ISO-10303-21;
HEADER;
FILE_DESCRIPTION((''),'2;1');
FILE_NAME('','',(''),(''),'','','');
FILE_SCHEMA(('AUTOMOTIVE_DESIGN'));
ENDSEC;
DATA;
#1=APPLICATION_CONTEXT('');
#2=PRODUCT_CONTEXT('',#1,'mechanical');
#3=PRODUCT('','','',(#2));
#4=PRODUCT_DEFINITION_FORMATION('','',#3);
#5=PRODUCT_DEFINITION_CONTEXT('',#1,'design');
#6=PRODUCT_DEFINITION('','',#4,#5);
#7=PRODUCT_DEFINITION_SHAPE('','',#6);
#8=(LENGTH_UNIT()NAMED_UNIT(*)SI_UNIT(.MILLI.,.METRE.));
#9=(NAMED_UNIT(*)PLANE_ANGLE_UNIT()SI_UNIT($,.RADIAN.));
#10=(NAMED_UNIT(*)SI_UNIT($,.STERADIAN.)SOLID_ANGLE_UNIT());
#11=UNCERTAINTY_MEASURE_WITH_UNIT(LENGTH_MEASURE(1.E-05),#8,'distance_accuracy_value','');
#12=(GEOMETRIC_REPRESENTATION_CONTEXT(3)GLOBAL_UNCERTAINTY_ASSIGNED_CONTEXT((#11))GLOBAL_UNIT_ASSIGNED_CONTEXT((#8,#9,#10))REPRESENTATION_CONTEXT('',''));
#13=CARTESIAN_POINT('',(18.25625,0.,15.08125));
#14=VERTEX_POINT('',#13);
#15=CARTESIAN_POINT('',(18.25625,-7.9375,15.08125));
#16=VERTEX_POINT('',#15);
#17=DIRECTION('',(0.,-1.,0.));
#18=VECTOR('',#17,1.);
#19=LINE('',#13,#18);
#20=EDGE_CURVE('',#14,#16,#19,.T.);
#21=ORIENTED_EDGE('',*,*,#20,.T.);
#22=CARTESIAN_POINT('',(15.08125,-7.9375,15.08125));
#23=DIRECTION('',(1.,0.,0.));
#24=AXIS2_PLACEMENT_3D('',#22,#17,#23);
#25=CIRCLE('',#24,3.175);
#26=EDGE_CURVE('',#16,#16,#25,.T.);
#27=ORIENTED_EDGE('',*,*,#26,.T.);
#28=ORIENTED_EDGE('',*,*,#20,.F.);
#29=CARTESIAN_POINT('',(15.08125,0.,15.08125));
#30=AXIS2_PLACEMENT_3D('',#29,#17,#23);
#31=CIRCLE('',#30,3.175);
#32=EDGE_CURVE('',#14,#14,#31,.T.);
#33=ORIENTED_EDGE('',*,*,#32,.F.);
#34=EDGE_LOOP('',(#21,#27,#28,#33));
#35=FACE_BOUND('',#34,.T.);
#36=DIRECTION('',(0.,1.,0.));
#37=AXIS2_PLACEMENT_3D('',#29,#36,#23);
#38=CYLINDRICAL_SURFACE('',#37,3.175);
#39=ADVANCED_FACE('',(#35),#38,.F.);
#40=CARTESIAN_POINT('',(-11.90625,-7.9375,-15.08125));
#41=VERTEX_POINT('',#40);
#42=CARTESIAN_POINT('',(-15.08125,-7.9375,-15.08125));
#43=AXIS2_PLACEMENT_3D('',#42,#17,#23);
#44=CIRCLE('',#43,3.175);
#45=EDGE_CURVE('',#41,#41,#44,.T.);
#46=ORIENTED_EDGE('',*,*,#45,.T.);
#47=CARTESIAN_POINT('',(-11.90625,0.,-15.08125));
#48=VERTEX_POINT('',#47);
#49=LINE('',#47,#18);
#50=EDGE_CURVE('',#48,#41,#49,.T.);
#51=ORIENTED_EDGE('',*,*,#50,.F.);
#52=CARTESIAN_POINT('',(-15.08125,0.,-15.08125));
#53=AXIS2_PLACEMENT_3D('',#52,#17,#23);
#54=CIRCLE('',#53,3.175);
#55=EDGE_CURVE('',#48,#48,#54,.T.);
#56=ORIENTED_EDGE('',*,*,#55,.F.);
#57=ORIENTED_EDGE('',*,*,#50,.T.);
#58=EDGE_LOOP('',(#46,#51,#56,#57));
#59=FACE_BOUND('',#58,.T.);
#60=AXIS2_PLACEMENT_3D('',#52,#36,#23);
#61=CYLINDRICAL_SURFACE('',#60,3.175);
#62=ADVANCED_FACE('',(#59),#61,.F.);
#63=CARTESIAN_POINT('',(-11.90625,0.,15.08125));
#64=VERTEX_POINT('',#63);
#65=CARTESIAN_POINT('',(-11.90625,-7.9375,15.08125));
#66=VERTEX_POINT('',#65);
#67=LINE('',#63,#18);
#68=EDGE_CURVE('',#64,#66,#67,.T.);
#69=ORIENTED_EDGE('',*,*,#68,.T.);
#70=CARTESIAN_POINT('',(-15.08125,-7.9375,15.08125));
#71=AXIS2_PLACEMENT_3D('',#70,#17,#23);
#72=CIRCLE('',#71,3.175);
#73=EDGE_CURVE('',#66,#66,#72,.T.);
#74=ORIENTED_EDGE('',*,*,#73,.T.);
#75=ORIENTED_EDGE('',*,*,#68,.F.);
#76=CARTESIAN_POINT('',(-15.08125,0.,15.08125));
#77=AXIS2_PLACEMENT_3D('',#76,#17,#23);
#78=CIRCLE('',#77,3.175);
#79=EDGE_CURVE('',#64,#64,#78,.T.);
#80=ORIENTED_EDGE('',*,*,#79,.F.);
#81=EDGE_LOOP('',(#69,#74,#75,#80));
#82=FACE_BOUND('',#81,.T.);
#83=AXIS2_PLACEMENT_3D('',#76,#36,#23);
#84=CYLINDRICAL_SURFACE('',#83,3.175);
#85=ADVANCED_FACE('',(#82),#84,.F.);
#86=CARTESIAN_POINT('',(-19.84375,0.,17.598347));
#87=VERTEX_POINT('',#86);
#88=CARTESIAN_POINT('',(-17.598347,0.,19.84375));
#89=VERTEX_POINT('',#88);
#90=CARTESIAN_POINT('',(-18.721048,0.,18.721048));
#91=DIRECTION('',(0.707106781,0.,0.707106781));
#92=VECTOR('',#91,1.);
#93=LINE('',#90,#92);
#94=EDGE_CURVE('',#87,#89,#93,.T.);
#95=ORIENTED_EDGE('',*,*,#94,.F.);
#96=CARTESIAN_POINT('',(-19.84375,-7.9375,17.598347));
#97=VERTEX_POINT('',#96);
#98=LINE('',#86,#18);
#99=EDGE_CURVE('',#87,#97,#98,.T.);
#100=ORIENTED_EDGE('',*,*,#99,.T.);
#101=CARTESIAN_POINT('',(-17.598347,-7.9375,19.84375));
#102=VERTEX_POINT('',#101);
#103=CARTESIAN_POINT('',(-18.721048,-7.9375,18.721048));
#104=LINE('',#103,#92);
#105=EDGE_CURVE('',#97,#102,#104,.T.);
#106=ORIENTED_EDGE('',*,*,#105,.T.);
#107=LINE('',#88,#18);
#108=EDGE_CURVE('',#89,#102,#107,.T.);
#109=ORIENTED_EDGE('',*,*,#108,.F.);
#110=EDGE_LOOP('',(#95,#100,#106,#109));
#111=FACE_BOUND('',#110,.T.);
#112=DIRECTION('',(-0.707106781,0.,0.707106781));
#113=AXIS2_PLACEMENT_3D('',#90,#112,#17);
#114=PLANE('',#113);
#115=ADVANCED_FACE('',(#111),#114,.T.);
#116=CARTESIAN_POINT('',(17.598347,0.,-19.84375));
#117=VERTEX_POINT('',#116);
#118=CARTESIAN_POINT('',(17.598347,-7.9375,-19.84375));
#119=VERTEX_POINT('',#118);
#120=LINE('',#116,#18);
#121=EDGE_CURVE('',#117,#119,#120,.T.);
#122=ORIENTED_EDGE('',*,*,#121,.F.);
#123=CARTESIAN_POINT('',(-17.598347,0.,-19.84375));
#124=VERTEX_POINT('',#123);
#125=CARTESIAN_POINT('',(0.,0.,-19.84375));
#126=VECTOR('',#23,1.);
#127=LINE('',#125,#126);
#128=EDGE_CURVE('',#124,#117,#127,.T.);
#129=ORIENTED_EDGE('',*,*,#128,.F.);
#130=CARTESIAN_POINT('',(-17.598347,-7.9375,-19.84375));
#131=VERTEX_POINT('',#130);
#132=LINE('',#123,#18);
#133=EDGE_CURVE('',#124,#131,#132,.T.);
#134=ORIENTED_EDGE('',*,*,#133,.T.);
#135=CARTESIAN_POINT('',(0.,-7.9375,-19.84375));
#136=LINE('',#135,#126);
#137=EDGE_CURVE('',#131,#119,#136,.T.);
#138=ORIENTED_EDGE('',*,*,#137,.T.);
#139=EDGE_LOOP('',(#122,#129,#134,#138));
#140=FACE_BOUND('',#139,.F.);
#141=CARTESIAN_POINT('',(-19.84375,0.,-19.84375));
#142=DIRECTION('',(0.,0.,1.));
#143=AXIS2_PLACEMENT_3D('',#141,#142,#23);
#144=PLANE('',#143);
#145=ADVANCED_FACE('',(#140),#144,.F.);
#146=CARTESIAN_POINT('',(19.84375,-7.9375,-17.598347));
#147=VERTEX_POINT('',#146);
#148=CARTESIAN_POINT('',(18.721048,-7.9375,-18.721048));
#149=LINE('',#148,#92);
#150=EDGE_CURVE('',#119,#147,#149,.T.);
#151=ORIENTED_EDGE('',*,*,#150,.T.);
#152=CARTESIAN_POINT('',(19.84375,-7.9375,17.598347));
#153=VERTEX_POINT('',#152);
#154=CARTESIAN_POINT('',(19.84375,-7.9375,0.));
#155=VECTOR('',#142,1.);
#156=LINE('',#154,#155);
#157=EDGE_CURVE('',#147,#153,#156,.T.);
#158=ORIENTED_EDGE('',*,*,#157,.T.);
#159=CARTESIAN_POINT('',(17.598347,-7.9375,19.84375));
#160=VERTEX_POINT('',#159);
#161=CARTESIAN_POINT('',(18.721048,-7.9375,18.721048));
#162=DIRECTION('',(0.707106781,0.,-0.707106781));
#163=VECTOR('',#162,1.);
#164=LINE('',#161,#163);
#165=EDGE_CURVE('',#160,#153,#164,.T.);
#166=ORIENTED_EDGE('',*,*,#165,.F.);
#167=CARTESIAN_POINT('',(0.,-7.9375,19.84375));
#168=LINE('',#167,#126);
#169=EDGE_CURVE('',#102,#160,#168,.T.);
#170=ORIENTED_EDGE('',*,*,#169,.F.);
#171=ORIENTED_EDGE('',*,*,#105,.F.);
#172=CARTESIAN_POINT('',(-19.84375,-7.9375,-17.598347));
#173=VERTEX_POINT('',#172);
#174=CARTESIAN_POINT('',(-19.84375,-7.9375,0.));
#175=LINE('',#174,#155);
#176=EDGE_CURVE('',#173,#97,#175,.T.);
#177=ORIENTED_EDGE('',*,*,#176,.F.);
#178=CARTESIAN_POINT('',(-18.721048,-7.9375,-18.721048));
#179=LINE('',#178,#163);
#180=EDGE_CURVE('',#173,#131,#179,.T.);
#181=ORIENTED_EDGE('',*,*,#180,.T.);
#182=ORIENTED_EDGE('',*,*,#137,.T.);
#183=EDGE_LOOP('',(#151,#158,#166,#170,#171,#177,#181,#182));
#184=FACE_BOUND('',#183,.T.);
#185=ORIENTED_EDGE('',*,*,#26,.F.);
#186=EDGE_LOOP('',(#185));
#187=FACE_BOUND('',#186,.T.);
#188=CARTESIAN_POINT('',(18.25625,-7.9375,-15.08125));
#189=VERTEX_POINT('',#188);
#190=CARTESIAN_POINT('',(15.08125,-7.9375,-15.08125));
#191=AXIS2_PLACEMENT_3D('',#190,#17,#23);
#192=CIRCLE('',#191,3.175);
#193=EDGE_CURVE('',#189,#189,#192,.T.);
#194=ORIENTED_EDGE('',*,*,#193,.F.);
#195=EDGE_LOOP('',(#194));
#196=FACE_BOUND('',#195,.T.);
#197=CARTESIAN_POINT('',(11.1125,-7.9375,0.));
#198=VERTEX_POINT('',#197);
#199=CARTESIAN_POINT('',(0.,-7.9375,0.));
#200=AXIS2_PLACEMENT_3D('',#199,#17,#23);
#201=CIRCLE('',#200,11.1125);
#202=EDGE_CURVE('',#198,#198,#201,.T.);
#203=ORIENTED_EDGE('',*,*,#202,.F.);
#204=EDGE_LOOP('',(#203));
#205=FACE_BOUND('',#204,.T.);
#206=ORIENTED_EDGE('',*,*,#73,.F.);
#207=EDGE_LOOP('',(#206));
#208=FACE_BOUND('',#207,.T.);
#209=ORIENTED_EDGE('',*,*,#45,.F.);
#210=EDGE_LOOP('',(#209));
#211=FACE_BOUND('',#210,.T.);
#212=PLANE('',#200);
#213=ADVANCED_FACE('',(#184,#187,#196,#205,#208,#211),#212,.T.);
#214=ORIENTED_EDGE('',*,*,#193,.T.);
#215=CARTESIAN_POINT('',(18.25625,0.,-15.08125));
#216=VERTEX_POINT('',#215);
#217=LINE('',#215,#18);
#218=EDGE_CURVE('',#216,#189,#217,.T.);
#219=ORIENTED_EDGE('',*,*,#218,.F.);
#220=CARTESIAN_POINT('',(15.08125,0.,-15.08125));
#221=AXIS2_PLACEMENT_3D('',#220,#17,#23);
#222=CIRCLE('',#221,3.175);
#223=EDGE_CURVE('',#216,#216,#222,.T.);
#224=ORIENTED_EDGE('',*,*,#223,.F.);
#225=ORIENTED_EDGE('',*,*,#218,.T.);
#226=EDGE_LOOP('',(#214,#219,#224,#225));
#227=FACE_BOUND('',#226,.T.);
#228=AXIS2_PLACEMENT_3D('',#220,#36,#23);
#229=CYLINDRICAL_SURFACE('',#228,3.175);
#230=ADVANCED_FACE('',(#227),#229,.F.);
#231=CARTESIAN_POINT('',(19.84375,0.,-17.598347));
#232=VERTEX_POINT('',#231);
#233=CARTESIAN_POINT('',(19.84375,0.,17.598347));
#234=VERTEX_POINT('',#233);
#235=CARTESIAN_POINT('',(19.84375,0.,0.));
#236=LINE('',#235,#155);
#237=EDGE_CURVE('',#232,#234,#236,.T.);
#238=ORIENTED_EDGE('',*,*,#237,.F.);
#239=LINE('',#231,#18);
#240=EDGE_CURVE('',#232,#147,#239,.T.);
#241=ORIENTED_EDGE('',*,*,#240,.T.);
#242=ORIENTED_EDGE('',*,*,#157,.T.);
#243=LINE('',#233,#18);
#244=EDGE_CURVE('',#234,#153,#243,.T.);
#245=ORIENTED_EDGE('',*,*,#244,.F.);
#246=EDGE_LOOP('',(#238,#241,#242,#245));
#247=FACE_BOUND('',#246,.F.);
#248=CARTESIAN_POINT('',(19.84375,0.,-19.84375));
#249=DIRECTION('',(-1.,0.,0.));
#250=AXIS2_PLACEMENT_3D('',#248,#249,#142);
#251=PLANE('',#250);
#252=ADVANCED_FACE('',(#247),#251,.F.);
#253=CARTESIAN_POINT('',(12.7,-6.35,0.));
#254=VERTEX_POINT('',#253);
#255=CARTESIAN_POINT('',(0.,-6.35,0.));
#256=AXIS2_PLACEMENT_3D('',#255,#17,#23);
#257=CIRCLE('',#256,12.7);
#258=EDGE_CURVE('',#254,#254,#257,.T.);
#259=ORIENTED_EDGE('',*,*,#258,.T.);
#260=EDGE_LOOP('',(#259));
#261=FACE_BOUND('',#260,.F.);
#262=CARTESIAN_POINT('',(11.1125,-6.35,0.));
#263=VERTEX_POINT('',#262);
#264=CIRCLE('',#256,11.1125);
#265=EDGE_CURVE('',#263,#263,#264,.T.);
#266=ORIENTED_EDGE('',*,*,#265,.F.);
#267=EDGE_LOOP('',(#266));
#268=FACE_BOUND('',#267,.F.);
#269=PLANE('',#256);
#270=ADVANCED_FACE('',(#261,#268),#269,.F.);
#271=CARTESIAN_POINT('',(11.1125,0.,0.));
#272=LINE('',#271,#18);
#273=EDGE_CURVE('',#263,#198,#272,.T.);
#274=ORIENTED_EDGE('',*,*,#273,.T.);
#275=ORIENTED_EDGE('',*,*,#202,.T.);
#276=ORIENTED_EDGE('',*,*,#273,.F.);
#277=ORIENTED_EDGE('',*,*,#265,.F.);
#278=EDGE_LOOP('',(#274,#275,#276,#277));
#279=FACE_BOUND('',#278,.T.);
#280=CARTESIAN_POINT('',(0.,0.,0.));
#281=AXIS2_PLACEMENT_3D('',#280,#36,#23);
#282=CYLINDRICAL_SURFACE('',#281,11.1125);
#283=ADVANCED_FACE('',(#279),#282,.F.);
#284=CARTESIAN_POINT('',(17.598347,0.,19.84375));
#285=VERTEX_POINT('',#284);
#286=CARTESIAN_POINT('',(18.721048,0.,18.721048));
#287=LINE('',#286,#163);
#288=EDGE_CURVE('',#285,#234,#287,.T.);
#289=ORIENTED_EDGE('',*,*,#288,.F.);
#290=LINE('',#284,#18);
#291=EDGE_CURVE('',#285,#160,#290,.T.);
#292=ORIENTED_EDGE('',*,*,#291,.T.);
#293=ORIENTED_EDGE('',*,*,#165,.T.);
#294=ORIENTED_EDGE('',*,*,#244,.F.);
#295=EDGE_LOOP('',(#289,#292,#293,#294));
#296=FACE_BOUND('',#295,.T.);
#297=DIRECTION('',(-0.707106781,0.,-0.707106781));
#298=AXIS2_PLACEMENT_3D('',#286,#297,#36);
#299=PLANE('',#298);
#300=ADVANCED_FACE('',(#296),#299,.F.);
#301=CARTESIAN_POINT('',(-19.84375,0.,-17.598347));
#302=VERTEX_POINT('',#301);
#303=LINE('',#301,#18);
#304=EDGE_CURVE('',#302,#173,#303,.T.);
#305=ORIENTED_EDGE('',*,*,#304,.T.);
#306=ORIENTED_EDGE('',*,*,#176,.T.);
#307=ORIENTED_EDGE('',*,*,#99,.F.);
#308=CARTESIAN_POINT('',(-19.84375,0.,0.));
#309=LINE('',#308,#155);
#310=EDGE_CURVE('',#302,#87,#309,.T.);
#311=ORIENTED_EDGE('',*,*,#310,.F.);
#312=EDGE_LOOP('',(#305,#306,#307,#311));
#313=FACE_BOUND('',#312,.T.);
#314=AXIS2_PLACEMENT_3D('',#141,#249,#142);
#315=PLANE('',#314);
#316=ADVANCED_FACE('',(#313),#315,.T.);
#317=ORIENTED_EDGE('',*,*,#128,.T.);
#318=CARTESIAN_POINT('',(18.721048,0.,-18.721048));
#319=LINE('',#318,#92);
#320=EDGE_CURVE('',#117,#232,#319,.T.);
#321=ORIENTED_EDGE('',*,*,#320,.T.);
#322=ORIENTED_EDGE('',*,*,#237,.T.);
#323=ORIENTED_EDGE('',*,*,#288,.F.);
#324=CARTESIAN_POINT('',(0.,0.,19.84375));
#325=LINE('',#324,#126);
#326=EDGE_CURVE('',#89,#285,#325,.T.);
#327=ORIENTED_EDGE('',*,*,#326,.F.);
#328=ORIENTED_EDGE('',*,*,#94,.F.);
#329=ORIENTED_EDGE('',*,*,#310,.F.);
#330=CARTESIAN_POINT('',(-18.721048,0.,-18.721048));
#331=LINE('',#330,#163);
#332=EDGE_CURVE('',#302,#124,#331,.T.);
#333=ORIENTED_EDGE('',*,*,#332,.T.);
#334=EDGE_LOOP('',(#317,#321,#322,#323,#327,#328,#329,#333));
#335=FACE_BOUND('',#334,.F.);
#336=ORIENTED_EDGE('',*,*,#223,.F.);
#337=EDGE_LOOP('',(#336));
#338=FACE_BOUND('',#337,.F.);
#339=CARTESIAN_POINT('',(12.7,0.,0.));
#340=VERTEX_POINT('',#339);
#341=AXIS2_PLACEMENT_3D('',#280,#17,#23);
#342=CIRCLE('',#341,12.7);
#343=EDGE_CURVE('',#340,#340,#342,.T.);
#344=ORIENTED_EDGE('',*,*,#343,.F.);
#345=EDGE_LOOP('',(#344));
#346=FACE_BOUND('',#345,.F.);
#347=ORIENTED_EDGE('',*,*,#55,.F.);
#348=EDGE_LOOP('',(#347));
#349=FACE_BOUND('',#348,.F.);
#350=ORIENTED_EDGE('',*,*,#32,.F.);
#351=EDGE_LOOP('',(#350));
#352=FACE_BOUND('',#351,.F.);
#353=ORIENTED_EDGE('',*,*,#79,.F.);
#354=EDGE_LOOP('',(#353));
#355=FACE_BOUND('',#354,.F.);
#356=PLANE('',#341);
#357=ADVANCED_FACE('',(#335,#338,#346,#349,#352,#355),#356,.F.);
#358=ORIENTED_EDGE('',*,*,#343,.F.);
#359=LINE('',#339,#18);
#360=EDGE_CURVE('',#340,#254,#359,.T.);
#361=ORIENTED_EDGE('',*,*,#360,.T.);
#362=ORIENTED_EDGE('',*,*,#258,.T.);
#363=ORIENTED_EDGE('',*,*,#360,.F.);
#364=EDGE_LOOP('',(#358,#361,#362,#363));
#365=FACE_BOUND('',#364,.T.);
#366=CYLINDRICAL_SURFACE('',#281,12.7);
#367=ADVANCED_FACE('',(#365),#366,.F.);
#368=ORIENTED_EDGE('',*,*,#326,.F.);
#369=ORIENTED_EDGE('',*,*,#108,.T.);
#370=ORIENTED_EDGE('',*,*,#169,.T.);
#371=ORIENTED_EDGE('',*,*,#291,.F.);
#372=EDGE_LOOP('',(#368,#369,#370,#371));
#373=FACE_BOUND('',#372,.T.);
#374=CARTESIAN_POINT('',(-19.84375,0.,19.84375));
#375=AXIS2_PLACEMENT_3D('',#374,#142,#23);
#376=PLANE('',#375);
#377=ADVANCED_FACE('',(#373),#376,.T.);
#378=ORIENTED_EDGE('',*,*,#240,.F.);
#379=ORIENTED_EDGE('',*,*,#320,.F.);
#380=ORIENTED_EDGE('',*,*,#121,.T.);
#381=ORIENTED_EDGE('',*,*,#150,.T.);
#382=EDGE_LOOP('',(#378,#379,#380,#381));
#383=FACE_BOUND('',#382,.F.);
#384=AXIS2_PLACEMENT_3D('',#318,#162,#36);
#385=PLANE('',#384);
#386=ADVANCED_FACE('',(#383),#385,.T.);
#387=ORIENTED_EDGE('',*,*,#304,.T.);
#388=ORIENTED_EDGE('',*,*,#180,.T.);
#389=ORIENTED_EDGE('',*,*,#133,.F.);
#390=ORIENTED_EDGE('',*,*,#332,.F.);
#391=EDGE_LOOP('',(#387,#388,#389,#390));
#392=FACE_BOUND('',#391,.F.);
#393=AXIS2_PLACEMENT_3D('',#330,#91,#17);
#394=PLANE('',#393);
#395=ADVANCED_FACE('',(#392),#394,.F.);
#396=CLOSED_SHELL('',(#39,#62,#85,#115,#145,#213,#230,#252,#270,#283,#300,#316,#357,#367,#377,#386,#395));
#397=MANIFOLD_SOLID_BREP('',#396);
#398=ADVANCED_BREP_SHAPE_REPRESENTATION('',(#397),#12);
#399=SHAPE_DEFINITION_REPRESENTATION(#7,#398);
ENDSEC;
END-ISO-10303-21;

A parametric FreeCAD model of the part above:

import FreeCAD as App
import Part
import Sketcher
from FreeCAD import Vector
Q = App.Units.Quantity


def edges_at(feature, points):
    """Names of the edges that pass closest to the given points."""
    edges = feature.Shape.Edges
    near = lambda p: min(range(len(edges)), key=lambda i: edges[i].distToShape(Part.Vertex(*p))[0])
    return sorted({f"Edge{near(p) + 1}" for p in points})

doc = App.newDocument("Part")
body = doc.addObject("PartDesign::Body", "Body")

# Sketch on XZ plane
sketch1 = doc.addObject("Sketcher::SketchObject", "Sketch")
body.addObject(sketch1)
sketch1.AttachmentSupport = (doc.XZ_Plane, [""])
sketch1.MapMode = "FlatFace"
sketch1.addGeometry(Part.LineSegment(Vector(-19.84375, 19.84375, 0), Vector(-19.84375, -19.84375, 0)), False)
sketch1.addGeometry(Part.LineSegment(Vector(-19.84375, -19.84375, 0), Vector(19.84375, -19.84375, 0)), False)
sketch1.addGeometry(Part.LineSegment(Vector(19.84375, -19.84375, 0), Vector(19.84375, 19.84375, 0)), False)
sketch1.addGeometry(Part.LineSegment(Vector(19.84375, 19.84375, 0), Vector(-19.84375, 19.84375, 0)), False)
sketch1.addGeometry(Part.Circle(Vector(-15.08125, -15.08125, 0), Vector(0, 0, 1), 3.175), False)
sketch1.addGeometry(Part.Circle(Vector(15.08125, -15.08125, 0), Vector(0, 0, 1), 3.175), False)
sketch1.addGeometry(Part.Circle(Vector(-15.08125, 15.08125, 0), Vector(0, 0, 1), 3.175), False)
sketch1.addGeometry(Part.Circle(Vector(0, 0, 0), Vector(0, 0, 1), 11.1125), False)
sketch1.addGeometry(Part.Circle(Vector(15.08125, 15.08125, 0), Vector(0, 0, 1), 3.175), False)
sketch1.addConstraint(Sketcher.Constraint("Coincident", 0, 2, 1, 1))
sketch1.addConstraint(Sketcher.Constraint("Coincident", 1, 2, 2, 1))
sketch1.addConstraint(Sketcher.Constraint("Coincident", 2, 2, 3, 1))
sketch1.addConstraint(Sketcher.Constraint("Coincident", 3, 2, 0, 1))
sketch1.addConstraint(Sketcher.Constraint("Vertical", 0))
sketch1.addConstraint(Sketcher.Constraint("Horizontal", 1))
sketch1.addConstraint(Sketcher.Constraint("Vertical", 2))
sketch1.addConstraint(Sketcher.Constraint("Horizontal", 3))
sketch1.addConstraint(Sketcher.Constraint("Coincident", 7, 3, -1, 1))
sketch1.addConstraint(Sketcher.Constraint("Equal", 4, 5))
sketch1.addConstraint(Sketcher.Constraint("Equal", 5, 6))
sketch1.addConstraint(Sketcher.Constraint("Equal", 6, 8))
sketch1.addConstraint(Sketcher.Constraint("Symmetric", 5, 3, 6, 3, -1, 1))
sketch1.addConstraint(Sketcher.Constraint("Symmetric", 4, 3, 8, 3, -1, 1))
sketch1.addConstraint(Sketcher.Constraint("Symmetric", 0, 2, 2, 2, -1, 1))
sketch1.addConstraint(Sketcher.Constraint("Symmetric", 4, 3, 5, 3, -2))
sketch1.addConstraint(Sketcher.Constraint("Equal", 3, 0))
sketch1.addConstraint(Sketcher.Constraint("Diameter", 4, Q("0.25 in")))
sketch1.addConstraint(Sketcher.Constraint("Diameter", 7, Q("0.875 in")))
sketch1.addConstraint(Sketcher.Constraint("DistanceX", 1, 1, 1, 2, Q("1.5625 in")))
sketch1.addConstraint(Sketcher.Constraint("DistanceX", 4, 3, -1, 1, Q("0.59375 in")))
sketch1.addConstraint(Sketcher.Constraint("DistanceY", 4, 3, -1, 1, Q("0.59375 in")))
pad1 = doc.addObject("PartDesign::Pad", "Pad")
body.addObject(pad1)
pad1.Profile = sketch1
pad1.Length = Q("0.3125 in")

# Sketch on XZ plane
sketch2 = doc.addObject("Sketcher::SketchObject", "Sketch001")
body.addObject(sketch2)
sketch2.AttachmentSupport = (doc.XZ_Plane, [""])
sketch2.MapMode = "FlatFace"
sketch2.addGeometry(Part.Circle(Vector(0, 0, 0), Vector(0, 0, 1), 12.7), False)
sketch2.addGeometry(Part.Circle(Vector(0, 0, 0), Vector(0, 0, 1), 11.1125), False)
sketch2.addConstraint(Sketcher.Constraint("Coincident", 0, 3, -1, 1))
sketch2.addConstraint(Sketcher.Constraint("Coincident", 1, 3, -1, 1))
sketch2.addConstraint(Sketcher.Constraint("Diameter", 0, Q("1 in")))
sketch2.addConstraint(Sketcher.Constraint("Diameter", 1, Q("0.875 in")))
pocket1 = doc.addObject("PartDesign::Pocket", "Pocket")
body.addObject(pocket1)
pocket1.Profile = sketch2
pocket1.Length = Q("0.25 in")
pocket1.Reversed = True
doc.recompute()

chamfer = doc.addObject("PartDesign::Chamfer", "Chamfer")
body.addObject(chamfer)
chamfer.Base = (pocket1, edges_at(pocket1, [
    (19.844, -3.969, 19.844),
    (19.844, -3.969, -19.844),
    (-19.844, -3.969, -19.844),
    (-19.844, -3.969, 19.844),
]))
chamfer.Size = 2.245403

doc.recompute()
